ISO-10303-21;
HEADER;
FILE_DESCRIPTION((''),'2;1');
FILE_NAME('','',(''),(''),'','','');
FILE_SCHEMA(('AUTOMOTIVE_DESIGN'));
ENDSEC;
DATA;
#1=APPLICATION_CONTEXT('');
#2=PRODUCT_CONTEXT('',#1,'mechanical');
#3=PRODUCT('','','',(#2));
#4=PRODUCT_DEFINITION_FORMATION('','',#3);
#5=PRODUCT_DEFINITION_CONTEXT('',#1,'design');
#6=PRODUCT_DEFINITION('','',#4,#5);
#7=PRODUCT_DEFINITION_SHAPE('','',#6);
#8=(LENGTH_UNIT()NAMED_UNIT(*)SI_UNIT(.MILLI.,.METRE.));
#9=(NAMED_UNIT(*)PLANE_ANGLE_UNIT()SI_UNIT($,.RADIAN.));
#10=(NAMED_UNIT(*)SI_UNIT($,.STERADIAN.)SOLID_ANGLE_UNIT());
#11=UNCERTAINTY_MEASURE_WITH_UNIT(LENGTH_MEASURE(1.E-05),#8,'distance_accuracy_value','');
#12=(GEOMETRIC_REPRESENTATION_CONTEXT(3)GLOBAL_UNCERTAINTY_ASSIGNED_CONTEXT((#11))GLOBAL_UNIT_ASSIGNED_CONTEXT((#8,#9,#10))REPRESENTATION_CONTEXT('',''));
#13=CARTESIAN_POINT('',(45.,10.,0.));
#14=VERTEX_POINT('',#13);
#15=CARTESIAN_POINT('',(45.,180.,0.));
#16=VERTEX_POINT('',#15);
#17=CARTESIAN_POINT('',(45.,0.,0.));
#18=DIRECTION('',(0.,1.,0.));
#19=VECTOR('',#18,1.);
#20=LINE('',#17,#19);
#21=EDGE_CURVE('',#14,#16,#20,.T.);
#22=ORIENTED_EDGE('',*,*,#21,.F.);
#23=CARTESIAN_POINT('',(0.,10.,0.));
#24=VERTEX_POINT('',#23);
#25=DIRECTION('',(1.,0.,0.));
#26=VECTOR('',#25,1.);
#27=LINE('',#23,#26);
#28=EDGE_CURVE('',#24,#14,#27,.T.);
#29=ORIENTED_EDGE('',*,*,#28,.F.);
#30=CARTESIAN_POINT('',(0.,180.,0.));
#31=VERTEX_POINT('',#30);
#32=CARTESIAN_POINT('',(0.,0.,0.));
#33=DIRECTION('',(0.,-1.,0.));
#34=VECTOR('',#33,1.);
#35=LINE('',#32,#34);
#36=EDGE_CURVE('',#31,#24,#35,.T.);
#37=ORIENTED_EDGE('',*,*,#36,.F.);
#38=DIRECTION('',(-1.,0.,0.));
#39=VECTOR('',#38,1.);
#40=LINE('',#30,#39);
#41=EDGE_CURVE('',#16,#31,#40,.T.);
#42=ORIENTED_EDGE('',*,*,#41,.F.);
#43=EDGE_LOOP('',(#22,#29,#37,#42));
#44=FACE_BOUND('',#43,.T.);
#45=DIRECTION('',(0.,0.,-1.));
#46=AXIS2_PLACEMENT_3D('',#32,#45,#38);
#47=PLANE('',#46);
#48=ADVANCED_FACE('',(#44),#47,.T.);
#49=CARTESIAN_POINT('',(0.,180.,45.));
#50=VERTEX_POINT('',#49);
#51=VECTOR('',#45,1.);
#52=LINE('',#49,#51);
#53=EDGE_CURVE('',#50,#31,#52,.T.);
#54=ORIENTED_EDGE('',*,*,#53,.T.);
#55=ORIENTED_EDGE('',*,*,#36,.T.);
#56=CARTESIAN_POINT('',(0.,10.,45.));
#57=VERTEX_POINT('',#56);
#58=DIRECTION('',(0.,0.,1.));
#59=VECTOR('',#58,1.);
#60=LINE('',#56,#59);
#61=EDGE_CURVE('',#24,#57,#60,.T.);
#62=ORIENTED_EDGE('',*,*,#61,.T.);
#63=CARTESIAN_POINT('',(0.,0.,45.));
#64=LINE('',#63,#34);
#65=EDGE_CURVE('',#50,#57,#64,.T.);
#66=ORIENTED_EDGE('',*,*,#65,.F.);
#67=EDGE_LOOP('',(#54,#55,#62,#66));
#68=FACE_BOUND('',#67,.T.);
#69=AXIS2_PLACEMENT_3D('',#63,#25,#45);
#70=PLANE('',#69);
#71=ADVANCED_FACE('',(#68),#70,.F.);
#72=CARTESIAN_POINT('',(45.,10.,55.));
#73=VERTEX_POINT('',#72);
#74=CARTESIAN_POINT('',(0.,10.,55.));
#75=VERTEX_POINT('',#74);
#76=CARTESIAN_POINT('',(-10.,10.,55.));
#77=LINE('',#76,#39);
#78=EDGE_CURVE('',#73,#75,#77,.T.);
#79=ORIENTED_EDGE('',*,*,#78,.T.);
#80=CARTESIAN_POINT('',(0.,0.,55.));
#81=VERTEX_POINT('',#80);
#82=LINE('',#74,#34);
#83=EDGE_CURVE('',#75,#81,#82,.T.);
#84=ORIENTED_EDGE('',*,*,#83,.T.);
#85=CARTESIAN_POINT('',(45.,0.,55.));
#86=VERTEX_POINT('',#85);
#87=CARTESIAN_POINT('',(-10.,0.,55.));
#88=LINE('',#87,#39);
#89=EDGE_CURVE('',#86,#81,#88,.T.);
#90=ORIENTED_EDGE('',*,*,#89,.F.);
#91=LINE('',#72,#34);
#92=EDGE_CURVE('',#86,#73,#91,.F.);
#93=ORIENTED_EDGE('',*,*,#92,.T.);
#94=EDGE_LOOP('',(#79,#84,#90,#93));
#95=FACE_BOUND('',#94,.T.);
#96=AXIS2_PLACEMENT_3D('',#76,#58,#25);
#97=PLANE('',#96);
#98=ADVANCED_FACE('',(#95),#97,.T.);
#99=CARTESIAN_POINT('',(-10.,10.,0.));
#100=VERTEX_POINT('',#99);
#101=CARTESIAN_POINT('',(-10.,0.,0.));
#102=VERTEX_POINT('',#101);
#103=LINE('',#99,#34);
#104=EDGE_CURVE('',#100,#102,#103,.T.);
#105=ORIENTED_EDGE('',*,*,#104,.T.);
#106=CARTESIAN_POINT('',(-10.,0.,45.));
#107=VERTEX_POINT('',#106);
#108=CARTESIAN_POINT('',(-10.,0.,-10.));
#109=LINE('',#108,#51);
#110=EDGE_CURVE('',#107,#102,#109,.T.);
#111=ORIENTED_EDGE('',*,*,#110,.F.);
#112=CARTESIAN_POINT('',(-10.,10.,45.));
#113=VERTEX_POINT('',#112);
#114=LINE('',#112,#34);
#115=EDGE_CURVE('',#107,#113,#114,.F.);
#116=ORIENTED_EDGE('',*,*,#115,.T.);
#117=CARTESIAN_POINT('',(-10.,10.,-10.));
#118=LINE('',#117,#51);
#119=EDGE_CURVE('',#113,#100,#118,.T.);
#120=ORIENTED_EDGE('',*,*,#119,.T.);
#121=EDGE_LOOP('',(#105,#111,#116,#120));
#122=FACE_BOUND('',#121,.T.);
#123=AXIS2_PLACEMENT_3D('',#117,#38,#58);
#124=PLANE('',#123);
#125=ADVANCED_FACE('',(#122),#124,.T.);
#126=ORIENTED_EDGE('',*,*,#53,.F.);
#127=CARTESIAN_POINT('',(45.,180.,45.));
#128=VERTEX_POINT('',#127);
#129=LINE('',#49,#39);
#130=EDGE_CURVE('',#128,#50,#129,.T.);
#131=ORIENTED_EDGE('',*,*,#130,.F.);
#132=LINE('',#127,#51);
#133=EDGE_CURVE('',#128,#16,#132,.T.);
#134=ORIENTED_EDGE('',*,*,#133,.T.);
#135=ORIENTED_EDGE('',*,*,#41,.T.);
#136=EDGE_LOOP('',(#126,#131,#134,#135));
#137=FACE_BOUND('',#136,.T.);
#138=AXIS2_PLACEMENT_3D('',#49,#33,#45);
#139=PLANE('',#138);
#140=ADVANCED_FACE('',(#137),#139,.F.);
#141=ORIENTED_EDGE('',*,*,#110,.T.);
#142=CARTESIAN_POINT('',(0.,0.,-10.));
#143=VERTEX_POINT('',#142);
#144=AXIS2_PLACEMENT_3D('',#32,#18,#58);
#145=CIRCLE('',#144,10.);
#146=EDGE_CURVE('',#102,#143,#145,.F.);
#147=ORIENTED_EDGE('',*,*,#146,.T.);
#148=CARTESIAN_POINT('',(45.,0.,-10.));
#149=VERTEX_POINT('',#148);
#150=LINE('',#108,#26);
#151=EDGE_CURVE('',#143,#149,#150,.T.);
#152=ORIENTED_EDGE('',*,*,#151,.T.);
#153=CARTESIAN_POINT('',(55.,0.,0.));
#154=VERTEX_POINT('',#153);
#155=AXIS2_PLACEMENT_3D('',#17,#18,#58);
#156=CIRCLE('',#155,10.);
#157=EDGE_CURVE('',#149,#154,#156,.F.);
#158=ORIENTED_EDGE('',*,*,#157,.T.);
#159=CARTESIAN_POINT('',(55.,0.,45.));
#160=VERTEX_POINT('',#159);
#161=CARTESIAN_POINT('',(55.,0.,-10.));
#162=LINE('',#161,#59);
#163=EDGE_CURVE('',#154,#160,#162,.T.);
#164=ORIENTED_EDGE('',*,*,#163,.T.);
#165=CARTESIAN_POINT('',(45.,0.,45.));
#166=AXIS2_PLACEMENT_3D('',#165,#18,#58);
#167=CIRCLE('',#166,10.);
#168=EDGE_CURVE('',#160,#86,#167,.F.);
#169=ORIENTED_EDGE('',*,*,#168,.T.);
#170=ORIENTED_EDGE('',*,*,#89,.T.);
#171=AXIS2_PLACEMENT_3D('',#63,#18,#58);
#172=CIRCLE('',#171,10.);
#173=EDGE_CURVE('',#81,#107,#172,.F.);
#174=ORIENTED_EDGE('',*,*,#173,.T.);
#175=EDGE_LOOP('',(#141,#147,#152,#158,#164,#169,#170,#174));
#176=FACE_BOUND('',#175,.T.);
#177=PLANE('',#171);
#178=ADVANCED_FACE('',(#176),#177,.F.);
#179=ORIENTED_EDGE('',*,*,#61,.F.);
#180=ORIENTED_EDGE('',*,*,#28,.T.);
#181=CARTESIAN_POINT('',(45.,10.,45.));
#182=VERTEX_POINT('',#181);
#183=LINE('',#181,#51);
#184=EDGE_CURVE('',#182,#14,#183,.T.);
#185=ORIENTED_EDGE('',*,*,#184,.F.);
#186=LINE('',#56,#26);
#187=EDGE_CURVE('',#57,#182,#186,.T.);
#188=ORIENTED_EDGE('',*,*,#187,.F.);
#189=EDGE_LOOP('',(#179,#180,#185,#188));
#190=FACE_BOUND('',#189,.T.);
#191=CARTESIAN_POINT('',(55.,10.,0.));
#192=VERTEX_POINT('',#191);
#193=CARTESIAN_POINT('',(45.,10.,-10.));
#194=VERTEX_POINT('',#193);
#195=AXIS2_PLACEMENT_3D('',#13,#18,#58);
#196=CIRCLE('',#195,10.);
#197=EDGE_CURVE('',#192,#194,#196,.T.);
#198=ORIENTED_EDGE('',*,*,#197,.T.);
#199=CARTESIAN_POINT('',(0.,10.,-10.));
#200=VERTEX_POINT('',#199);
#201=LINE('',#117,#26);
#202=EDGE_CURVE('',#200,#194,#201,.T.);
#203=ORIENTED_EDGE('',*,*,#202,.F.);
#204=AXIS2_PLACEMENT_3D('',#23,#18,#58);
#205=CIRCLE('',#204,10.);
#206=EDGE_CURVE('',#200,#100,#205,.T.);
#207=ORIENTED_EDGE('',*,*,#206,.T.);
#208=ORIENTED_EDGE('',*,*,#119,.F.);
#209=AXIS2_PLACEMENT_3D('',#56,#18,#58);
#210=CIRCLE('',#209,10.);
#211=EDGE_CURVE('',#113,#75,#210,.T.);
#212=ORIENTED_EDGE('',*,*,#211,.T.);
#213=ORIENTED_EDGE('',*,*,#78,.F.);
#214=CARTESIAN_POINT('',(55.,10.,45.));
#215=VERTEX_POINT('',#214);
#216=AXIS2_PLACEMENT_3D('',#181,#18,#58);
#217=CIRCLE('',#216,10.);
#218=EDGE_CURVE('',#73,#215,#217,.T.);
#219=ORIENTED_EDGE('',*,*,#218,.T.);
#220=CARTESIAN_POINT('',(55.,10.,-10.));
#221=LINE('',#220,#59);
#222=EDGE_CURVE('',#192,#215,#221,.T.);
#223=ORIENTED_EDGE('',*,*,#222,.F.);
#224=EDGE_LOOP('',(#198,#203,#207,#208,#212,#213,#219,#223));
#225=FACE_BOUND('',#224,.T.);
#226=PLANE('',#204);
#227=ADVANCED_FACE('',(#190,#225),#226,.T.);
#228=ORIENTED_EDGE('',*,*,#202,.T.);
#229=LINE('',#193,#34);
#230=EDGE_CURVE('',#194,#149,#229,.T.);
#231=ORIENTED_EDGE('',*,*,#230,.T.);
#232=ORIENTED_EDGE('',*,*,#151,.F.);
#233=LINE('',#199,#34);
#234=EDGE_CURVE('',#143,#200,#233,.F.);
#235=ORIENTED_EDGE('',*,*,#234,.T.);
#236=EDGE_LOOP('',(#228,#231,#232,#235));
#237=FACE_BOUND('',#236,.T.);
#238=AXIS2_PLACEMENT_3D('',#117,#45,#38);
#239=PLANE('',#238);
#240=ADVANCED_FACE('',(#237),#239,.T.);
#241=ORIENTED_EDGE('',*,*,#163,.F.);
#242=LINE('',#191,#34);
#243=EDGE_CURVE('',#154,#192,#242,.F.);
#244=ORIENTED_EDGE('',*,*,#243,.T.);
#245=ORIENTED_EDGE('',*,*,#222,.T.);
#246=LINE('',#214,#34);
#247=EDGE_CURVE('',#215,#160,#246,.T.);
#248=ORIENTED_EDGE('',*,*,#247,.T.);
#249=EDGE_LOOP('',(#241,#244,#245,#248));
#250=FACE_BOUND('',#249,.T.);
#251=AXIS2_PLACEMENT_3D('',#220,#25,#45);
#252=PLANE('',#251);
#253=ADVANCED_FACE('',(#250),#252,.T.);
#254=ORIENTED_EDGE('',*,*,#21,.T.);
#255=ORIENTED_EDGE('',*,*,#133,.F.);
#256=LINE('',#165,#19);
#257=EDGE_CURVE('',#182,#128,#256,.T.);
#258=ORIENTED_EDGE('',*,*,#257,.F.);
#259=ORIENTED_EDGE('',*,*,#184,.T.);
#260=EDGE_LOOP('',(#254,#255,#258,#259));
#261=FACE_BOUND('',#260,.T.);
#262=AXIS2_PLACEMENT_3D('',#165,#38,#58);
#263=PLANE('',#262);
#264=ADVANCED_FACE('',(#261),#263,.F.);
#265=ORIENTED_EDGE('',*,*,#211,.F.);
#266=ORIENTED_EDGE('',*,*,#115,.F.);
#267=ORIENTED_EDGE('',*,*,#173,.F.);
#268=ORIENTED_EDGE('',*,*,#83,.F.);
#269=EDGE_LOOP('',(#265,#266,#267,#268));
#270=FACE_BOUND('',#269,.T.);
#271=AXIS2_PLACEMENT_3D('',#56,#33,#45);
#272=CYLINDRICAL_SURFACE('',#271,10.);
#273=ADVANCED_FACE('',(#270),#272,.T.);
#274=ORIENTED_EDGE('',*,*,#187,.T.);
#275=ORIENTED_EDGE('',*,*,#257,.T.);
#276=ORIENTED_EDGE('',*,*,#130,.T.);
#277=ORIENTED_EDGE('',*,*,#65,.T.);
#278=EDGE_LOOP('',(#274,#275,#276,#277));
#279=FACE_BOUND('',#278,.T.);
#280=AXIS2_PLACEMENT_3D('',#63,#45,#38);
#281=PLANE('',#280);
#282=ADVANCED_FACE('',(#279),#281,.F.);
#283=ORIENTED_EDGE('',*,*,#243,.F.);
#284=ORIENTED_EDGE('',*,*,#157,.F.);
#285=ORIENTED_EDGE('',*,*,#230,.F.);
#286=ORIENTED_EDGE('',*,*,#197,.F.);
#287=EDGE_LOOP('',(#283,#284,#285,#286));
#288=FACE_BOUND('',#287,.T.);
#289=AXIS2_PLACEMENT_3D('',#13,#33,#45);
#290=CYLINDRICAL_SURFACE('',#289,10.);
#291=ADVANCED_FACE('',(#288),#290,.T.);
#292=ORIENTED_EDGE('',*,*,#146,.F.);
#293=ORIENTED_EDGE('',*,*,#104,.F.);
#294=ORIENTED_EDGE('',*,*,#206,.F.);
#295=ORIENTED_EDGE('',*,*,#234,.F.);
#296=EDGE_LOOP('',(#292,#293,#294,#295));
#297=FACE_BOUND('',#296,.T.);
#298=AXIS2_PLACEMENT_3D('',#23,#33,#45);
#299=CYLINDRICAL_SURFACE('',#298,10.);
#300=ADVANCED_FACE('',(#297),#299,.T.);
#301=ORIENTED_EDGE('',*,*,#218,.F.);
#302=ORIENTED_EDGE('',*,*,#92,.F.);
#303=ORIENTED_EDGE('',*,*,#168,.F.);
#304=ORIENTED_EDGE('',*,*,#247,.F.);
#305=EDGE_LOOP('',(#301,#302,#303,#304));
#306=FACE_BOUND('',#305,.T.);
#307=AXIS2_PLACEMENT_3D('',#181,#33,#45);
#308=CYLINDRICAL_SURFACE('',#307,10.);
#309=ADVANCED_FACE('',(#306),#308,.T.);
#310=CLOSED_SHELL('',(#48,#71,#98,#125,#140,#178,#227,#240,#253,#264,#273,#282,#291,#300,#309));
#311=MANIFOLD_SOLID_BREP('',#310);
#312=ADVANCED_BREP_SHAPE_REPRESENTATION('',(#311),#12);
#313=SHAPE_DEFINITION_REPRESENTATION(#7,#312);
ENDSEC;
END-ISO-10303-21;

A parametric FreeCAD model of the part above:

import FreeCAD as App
import Part
import Sketcher

V = App.Vector


def edges_at(feature, points):
    """Names of the edges that pass closest to the given points."""
    edges = feature.Shape.Edges
    near = lambda p: min(range(len(edges)), key=lambda i: edges[i].distToShape(Part.Vertex(*p))[0])
    return sorted({f"Edge{near(p) + 1}" for p in points})

doc = App.newDocument("Part")
body = doc.addObject("PartDesign::Body", "Body")

# Sketch on XY plane
sketch1 = body.newObject("Sketcher::SketchObject", "Sketch")
sketch1.AttachmentSupport = (doc.getObject("XY_Plane"), [""])
sketch1.MapMode = "FlatFace"
sketch1.addGeometry([
    Part.LineSegment(V(0, 180, 0), V(0, 0, 0)),
    Part.LineSegment(V(0, 0, 0), V(45, 0, 0)),
    Part.LineSegment(V(45, 0, 0), V(45, 180, 0)),
    Part.LineSegment(V(45, 180, 0), V(0, 180, 0)),
], False)
sketch1.addConstraint([
    Sketcher.Constraint("Coincident", 0, 2, 1, 1),
    Sketcher.Constraint("Coincident", 1, 2, 2, 1),
    Sketcher.Constraint("Coincident", 2, 2, 3, 1),
    Sketcher.Constraint("Coincident", 3, 2, 0, 1),
    Sketcher.Constraint("Vertical", 0),
    Sketcher.Constraint("Horizontal", 1),
    Sketcher.Constraint("Vertical", 2),
    Sketcher.Constraint("Horizontal", 3),
    Sketcher.Constraint("Coincident", 0, 2, -1, 1),
    Sketcher.Constraint("DistanceX", 1, 1, 1, 2, 45.0),
    Sketcher.Constraint("DistanceY", 0, 2, 0, 1, 180.0),
])
pad1 = body.newObject("PartDesign::Pad", "Pad")
pad1.Profile = sketch1
pad1.Length = 45

# Sketch on XZ plane
sketch2 = body.newObject("Sketcher::SketchObject", "Sketch001")
sketch2.AttachmentSupport = (doc.getObject("XZ_Plane"), [""])
sketch2.MapMode = "FlatFace"
sketch2.addGeometry([
    Part.LineSegment(V(-10, 55, 0), V(-10, -10, 0)),
    Part.LineSegment(V(-10, -10, 0), V(55, -10, 0)),
    Part.LineSegment(V(55, -10, 0), V(55, 55, 0)),
    Part.LineSegment(V(55, 55, 0), V(-10, 55, 0)),
], False)
sketch2.addConstraint([
    Sketcher.Constraint("Coincident", 0, 2, 1, 1),
    Sketcher.Constraint("Coincident", 1, 2, 2, 1),
    Sketcher.Constraint("Coincident", 2, 2, 3, 1),
    Sketcher.Constraint("Coincident", 3, 2, 0, 1),
    Sketcher.Constraint("Vertical", 0),
    Sketcher.Constraint("Horizontal", 1),
    Sketcher.Constraint("Vertical", 2),
    Sketcher.Constraint("Horizontal", 3),
    Sketcher.Constraint("Equal", 3, 0),
    Sketcher.Constraint("DistanceX", 1, 1, 1, 2, 65.0),
    Sketcher.Constraint("DistanceX", 0, 2, -1, 1, 10.0),
    Sketcher.Constraint("DistanceY", 0, 2, -1, 1, 10.0),
])
pad2 = body.newObject("PartDesign::Pad", "Pad001")
pad2.Profile = sketch2
pad2.Length = 10
pad2.Reversed = True
doc.recompute()

fillet = body.newObject("PartDesign::Fillet", "Fillet")
fillet.Base = (pad2, edges_at(pad2, [
    (-10, 5, -10),
    (-10, 5, 55),
    (55, 5, 55),
    (55, 5, -10),
]))
fillet.Radius = 10

doc.recompute()
